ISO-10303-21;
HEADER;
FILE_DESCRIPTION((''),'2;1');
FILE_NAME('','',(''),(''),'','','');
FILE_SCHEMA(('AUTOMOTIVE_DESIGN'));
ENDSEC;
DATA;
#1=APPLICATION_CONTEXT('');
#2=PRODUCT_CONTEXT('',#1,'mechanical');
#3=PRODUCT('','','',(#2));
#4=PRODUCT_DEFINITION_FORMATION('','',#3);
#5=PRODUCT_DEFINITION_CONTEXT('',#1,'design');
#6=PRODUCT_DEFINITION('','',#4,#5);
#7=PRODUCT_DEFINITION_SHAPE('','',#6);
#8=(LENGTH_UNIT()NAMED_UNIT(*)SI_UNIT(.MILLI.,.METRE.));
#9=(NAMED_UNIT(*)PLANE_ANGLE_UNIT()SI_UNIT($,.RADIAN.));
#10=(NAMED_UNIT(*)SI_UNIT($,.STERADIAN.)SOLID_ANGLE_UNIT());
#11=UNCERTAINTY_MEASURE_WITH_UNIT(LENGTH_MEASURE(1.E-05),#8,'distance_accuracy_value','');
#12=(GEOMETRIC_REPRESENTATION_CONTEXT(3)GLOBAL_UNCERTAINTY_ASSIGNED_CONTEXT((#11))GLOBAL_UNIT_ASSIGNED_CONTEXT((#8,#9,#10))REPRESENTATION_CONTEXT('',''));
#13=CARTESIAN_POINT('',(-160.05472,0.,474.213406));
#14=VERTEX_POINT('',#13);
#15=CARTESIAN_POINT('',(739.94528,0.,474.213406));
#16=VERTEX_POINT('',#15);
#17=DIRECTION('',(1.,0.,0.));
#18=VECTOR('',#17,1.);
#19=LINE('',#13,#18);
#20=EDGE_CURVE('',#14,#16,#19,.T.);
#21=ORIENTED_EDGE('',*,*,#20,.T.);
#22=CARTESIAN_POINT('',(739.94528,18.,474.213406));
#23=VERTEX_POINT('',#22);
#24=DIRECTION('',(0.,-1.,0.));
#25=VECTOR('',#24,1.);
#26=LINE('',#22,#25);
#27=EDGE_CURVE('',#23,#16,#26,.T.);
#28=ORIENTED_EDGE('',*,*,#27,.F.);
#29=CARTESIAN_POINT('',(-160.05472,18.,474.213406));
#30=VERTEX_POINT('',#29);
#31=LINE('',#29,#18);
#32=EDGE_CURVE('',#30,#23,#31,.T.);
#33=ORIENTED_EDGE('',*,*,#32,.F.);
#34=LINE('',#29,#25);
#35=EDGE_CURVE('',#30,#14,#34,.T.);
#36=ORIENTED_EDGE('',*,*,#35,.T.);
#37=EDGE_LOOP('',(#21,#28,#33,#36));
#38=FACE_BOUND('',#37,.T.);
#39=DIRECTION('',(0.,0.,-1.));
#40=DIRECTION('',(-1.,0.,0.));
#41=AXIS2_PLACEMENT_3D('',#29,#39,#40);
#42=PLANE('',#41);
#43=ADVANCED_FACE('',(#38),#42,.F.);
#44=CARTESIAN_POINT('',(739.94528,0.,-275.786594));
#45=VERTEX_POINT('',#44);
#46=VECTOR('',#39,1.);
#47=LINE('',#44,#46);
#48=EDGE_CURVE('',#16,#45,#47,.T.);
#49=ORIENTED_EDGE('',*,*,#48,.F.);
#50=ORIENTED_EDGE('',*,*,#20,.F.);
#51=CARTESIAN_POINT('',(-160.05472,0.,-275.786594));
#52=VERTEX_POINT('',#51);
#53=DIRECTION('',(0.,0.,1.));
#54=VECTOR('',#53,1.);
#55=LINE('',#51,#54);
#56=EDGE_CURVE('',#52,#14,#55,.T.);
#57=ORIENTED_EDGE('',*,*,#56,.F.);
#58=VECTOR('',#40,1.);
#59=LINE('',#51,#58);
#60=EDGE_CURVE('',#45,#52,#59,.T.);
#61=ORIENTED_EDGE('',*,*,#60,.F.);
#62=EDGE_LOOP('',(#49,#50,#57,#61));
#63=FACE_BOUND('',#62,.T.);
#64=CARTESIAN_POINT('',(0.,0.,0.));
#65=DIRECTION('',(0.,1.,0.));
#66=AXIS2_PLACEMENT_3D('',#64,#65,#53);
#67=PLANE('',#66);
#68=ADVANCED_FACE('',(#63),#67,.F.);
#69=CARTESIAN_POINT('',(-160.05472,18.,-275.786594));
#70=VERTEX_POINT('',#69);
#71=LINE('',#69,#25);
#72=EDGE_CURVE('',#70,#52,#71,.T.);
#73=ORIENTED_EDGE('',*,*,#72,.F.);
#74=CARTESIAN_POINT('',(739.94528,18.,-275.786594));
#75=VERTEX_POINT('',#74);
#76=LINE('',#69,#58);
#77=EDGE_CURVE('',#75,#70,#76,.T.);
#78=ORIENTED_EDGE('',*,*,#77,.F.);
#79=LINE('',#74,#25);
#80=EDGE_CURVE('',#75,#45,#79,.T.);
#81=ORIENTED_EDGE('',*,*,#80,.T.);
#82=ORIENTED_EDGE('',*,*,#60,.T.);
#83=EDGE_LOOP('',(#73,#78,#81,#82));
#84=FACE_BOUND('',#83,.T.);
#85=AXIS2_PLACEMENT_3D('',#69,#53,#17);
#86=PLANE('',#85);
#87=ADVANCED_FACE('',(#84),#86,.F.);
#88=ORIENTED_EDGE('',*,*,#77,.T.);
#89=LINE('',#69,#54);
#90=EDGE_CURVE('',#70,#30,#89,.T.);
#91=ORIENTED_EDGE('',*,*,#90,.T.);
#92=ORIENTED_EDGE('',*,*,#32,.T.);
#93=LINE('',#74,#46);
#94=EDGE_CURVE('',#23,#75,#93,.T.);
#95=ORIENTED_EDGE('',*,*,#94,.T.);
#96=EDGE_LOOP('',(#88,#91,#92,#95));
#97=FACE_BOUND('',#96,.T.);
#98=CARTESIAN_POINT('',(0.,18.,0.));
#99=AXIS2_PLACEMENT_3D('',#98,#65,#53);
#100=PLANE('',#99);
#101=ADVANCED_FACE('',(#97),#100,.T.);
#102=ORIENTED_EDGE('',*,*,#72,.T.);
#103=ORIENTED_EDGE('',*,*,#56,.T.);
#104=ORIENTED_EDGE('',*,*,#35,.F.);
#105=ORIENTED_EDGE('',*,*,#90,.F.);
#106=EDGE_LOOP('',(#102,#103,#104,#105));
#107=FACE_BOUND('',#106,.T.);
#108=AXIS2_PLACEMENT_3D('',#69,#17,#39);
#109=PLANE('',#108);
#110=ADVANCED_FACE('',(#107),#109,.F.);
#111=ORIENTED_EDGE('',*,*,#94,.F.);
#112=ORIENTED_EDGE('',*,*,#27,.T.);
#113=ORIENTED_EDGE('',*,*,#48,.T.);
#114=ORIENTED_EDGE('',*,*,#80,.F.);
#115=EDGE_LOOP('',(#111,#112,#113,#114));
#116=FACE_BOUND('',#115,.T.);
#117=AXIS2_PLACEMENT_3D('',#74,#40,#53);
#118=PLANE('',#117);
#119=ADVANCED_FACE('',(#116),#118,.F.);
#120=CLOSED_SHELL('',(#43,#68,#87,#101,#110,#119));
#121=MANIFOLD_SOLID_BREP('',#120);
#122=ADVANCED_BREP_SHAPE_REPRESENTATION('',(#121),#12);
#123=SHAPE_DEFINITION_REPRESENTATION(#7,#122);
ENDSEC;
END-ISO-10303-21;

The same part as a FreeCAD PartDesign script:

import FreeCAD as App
import Part
import Sketcher
Q = App.Units.Quantity


def add_polygon(sketch, points):
    """Adds a closed chain of lines whose ends are joined by coincident constraints."""
    first, n = sketch.GeometryCount, len(points)
    for a, b in zip(points, points[1:] + points[:1]):
        sketch.addGeometry(Part.LineSegment(App.Vector(*a, 0), App.Vector(*b, 0)), False)
    for i in range(n):
        sketch.addConstraint(Sketcher.Constraint("Coincident", first + i, 2, first + (i + 1) % n, 1))

doc = App.newDocument("Part")
body = doc.addObject("PartDesign::Body", "Body")

sketch1 = body.newObject("Sketcher::SketchObject", "Sketch")
sketch1.AttachmentSupport = (doc.getObject("XZ_Plane"), [""])
sketch1.MapMode = "FlatFace"
add_polygon(sketch1, [(-160, -276), (-160, 474), (740, 474), (740, -276)])
sketch1.addConstraint([
    Sketcher.Constraint("Vertical", 0),
    Sketcher.Constraint("Horizontal", 1),
    Sketcher.Constraint("Vertical", 2),
    Sketcher.Constraint("Horizontal", 3),
    Sketcher.Constraint("DistanceX", 1, 1, 1, 2, Q("900 mm")),
    Sketcher.Constraint("DistanceY", 0, 1, 0, 2, Q("750 mm")),
    Sketcher.Constraint("DistanceX", 0, 2, -1, 1, Q("160.05472 mm")),
    Sketcher.Constraint("DistanceY", -1, 1, 0, 2, Q("474.213406 mm")),
])
pad1 = body.newObject("PartDesign::Pad", "Pad")
pad1.Profile = sketch1
pad1.Length = 18
pad1.Reversed = True

doc.recompute()
